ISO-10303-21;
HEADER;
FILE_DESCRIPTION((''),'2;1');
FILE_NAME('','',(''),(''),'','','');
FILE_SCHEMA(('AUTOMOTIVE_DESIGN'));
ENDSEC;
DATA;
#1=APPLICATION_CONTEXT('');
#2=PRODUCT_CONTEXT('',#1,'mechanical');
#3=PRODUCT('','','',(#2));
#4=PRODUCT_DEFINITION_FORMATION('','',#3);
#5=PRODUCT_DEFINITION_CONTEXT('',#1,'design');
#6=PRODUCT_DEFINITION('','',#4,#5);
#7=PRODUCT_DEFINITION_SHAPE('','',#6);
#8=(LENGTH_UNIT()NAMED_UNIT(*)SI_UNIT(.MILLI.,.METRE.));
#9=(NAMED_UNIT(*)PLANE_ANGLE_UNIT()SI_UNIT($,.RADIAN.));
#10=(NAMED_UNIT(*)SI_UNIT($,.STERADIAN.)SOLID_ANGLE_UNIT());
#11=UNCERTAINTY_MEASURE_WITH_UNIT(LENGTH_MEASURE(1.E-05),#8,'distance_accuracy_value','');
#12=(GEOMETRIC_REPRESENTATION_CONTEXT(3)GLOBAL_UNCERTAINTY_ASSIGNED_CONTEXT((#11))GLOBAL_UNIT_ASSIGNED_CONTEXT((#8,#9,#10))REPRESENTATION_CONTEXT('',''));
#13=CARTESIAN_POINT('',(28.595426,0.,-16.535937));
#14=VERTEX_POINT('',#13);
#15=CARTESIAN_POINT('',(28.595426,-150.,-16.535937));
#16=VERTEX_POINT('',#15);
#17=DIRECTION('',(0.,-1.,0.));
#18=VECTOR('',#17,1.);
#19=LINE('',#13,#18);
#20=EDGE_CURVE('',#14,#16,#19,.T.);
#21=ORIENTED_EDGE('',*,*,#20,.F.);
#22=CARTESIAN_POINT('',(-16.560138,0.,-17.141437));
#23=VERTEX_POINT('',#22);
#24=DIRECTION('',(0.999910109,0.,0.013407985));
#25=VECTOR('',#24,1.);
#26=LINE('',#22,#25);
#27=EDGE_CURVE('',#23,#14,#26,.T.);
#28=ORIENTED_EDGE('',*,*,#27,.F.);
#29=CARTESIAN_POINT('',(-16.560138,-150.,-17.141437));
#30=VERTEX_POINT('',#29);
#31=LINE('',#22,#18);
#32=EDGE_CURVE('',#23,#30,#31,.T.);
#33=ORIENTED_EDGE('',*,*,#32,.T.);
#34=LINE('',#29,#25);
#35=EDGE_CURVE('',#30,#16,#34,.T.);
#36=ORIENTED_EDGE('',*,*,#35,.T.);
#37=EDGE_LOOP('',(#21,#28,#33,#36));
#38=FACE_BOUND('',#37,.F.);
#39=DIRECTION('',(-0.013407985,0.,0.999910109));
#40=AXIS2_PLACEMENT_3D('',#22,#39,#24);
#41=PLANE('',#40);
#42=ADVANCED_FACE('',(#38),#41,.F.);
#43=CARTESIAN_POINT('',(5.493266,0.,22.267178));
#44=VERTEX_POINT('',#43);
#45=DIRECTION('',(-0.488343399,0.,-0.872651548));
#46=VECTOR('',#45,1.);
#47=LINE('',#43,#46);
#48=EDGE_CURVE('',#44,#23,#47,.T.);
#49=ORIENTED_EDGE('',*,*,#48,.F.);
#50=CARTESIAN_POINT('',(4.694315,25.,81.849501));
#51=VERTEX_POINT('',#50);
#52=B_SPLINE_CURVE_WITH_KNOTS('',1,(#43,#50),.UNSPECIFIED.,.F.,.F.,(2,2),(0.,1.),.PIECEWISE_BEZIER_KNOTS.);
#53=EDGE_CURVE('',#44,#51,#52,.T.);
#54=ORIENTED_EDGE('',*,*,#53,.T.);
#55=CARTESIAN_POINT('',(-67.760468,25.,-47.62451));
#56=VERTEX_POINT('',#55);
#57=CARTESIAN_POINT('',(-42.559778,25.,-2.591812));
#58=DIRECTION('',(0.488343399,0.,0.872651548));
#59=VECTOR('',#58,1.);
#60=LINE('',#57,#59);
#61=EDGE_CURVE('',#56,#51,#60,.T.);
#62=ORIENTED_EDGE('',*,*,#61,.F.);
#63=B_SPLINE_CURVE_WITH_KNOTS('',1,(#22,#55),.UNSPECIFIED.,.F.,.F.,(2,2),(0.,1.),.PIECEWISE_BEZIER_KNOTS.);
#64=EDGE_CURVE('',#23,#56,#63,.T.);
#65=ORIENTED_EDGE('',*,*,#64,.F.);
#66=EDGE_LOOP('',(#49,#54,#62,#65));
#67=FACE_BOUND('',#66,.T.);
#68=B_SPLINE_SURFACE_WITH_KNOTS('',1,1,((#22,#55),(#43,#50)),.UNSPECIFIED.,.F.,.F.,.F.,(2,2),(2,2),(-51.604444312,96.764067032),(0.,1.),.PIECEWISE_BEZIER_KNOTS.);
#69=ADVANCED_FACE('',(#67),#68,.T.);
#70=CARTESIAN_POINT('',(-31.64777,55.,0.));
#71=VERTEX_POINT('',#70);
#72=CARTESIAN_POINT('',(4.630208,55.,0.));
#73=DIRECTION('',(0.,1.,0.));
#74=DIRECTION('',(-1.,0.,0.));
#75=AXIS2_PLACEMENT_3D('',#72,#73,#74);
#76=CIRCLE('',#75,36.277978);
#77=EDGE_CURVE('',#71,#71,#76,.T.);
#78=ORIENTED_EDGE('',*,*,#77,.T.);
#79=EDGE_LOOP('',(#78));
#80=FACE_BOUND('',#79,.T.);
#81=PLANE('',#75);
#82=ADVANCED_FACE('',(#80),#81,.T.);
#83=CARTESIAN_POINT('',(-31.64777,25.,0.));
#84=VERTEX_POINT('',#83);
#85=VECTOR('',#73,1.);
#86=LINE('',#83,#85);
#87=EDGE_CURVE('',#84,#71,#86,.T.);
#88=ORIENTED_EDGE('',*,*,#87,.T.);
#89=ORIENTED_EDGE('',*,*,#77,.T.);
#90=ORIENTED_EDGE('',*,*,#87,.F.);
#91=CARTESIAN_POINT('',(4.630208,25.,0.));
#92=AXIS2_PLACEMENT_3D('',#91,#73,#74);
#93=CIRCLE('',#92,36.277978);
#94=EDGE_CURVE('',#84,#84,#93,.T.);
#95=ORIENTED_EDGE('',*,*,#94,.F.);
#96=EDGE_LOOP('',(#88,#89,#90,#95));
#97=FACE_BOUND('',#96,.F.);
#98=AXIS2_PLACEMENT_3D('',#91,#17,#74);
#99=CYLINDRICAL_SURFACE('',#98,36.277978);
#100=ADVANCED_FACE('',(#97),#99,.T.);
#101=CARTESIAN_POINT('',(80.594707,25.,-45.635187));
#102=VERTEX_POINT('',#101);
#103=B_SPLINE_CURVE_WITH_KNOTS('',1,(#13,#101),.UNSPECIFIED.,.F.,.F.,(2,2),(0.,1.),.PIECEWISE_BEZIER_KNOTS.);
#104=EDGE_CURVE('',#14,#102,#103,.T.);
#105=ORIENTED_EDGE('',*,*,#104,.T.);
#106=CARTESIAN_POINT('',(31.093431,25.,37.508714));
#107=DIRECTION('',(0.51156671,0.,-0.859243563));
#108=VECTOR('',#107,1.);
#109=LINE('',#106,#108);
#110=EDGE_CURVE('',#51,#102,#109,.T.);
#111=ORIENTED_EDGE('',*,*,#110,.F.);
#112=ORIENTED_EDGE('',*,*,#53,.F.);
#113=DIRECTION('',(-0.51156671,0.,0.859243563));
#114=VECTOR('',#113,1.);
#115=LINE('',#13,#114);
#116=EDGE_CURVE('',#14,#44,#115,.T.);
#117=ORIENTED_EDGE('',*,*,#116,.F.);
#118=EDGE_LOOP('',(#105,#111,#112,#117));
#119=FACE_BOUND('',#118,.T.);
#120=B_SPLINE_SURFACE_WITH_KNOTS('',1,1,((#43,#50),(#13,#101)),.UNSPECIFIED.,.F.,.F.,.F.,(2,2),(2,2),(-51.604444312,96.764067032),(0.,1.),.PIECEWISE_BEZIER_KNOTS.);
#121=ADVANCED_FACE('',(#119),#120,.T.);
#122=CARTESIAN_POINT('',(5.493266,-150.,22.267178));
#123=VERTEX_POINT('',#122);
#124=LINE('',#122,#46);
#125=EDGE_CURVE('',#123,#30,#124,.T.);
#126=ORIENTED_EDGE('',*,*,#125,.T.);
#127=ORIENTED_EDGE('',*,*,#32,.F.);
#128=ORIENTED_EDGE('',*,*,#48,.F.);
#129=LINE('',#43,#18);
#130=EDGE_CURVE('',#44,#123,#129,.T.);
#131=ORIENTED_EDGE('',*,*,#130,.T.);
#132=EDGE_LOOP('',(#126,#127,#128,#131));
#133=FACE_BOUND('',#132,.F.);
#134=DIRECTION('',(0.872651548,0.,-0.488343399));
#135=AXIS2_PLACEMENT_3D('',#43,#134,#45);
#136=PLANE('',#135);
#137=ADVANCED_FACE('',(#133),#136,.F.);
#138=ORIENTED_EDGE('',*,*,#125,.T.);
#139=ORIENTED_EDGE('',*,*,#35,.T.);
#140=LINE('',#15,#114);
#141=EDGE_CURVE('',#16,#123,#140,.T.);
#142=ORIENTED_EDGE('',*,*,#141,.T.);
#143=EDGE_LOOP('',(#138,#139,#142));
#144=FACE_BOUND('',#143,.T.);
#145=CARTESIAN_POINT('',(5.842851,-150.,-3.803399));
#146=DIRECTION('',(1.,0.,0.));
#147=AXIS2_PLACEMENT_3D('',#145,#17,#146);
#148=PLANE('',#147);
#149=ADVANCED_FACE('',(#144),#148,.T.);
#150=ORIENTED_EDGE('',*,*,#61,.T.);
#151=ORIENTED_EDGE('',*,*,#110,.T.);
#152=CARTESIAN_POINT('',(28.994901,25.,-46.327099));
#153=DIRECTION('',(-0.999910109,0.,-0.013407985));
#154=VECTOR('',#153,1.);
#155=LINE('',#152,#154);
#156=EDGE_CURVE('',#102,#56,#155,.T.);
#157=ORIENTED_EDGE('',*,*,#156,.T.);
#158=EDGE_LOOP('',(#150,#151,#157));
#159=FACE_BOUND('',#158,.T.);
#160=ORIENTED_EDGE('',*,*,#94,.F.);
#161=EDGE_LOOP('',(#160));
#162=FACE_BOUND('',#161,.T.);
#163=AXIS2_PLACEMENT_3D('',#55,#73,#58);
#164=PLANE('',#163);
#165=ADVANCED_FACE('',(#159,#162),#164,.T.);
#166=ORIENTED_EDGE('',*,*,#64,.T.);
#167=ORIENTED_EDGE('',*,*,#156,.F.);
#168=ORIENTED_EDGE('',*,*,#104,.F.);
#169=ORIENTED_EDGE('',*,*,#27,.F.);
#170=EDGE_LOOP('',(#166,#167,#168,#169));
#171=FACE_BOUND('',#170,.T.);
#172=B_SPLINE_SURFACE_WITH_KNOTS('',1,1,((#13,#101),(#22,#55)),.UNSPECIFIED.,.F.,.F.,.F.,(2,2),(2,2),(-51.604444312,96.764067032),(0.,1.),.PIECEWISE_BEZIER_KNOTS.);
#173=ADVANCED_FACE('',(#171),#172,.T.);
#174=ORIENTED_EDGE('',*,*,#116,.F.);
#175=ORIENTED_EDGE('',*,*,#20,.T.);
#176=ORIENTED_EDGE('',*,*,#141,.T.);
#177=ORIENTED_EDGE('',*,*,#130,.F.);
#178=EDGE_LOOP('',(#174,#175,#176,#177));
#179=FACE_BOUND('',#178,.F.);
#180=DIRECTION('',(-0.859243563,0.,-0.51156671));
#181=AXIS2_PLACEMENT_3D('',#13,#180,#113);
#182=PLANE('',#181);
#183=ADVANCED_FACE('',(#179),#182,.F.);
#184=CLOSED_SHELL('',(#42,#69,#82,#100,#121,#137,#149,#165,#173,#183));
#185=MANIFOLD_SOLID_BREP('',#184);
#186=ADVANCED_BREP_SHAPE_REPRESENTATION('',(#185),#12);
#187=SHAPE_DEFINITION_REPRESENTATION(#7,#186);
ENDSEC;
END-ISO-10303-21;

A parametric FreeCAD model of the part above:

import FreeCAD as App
import Part
import Sketcher
from FreeCAD import Vector


def add_polygon(sketch, points):
    """Adds a closed chain of lines whose ends are joined by coincident constraints."""
    first, n = sketch.GeometryCount, len(points)
    for a, b in zip(points, points[1:] + points[:1]):
        sketch.addGeometry(Part.LineSegment(App.Vector(*a, 0), App.Vector(*b, 0)), False)
    for i in range(n):
        sketch.addConstraint(Sketcher.Constraint("Coincident", first + i, 2, first + (i + 1) % n, 1))

doc = App.newDocument("Part")
params = doc.addObject("Spreadsheet::Sheet", "Params")
for row, (alias, value) in enumerate([
    ("pad1_length", "150 mm"),
    ("pad2_length", "25 mm"),
    ("pad2_taper", "50 deg"),
    ("pad3_length", "30 mm"),
], start=1):
    params.set(f"A{row}", alias)
    params.set(f"B{row}", "=" + value)
    params.setAlias(f"B{row}", alias)

body = doc.addObject("PartDesign::Body", "Body")

# Sketch on XZ plane
sketch1 = body.newObject("Sketcher::SketchObject", "Sketch")
sketch1.AttachmentSupport = (doc.getObject("XZ_Plane"), [""])
sketch1.MapMode = "FlatFace"
add_polygon(sketch1, [(-17, -17), (29, -17), (5, 22)])  # lines 0-2
sketch1.addConstraint([
    Sketcher.Constraint("Equal", 0, 1),
    Sketcher.Constraint("Equal", 1, 2),
    Sketcher.Constraint("DistanceY", 2, 2, 0, 2, 0.6055),
    Sketcher.Constraint("DistanceX", 1, 2, 0, 2, 23.10216),
    Sketcher.Constraint("DistanceX", -1, 1, 0, 2, 28.595426),
    Sketcher.Constraint("DistanceY", 0, 2, -1, 1, 16.535937),
])
pad1 = body.newObject("PartDesign::Pad", "Pad")
pad1.Profile = sketch1
pad1.setExpression("Length", "Params.pad1_length")

# Sketch on XZ plane
sketch2 = body.newObject("Sketcher::SketchObject", "Sketch001")
sketch2.AttachmentSupport = (doc.getObject("XZ_Plane"), [""])
sketch2.MapMode = "FlatFace"
add_polygon(sketch2, [(-17, -17), (5, 22), (29, -17)])  # lines 0-2
sketch2.addConstraint([
    Sketcher.Constraint("Equal", 0, 1),
    Sketcher.Constraint("Equal", 1, 2),
    Sketcher.Constraint("DistanceY", 2, 2, 1, 2, 0.6055),
    Sketcher.Constraint("DistanceX", 0, 2, 1, 2, 23.10216),
    Sketcher.Constraint("DistanceX", -1, 1, 0, 2, 5.493266),
    Sketcher.Constraint("DistanceY", -1, 1, 0, 2, 22.267178),
])
pad2 = body.newObject("PartDesign::Pad", "Pad001")
pad2.Profile = sketch2
pad2.setExpression("Length", "Params.pad2_length")
pad2.Reversed = True
pad2.setExpression("TaperAngle", "Params.pad2_taper")

# Sketch on XZ plane
sketch3 = body.newObject("Sketcher::SketchObject", "Sketch002")
sketch3.AttachmentSupport = (doc.getObject("XZ_Plane"), [""])
sketch3.MapMode = "FlatFace"
sketch3.AttachmentOffset = App.Placement(Vector(0, 0, -25), App.Rotation())
sketch3.addGeometry(Part.Circle(Vector(5, 0, 0), Vector(0, 0, 1), 36), False)
sketch3.addConstraint([
    Sketcher.Constraint("PointOnObject", 0, 3, -1),
    Sketcher.Constraint("Diameter", 0, 72.555957),
    Sketcher.Constraint("DistanceX", -1, 1, 0, 3, 4.630208),
])
pad3 = body.newObject("PartDesign::Pad", "Pad002")
pad3.Profile = sketch3
pad3.setExpression("Length", "Params.pad3_length")
pad3.Reversed = True

doc.recompute()
